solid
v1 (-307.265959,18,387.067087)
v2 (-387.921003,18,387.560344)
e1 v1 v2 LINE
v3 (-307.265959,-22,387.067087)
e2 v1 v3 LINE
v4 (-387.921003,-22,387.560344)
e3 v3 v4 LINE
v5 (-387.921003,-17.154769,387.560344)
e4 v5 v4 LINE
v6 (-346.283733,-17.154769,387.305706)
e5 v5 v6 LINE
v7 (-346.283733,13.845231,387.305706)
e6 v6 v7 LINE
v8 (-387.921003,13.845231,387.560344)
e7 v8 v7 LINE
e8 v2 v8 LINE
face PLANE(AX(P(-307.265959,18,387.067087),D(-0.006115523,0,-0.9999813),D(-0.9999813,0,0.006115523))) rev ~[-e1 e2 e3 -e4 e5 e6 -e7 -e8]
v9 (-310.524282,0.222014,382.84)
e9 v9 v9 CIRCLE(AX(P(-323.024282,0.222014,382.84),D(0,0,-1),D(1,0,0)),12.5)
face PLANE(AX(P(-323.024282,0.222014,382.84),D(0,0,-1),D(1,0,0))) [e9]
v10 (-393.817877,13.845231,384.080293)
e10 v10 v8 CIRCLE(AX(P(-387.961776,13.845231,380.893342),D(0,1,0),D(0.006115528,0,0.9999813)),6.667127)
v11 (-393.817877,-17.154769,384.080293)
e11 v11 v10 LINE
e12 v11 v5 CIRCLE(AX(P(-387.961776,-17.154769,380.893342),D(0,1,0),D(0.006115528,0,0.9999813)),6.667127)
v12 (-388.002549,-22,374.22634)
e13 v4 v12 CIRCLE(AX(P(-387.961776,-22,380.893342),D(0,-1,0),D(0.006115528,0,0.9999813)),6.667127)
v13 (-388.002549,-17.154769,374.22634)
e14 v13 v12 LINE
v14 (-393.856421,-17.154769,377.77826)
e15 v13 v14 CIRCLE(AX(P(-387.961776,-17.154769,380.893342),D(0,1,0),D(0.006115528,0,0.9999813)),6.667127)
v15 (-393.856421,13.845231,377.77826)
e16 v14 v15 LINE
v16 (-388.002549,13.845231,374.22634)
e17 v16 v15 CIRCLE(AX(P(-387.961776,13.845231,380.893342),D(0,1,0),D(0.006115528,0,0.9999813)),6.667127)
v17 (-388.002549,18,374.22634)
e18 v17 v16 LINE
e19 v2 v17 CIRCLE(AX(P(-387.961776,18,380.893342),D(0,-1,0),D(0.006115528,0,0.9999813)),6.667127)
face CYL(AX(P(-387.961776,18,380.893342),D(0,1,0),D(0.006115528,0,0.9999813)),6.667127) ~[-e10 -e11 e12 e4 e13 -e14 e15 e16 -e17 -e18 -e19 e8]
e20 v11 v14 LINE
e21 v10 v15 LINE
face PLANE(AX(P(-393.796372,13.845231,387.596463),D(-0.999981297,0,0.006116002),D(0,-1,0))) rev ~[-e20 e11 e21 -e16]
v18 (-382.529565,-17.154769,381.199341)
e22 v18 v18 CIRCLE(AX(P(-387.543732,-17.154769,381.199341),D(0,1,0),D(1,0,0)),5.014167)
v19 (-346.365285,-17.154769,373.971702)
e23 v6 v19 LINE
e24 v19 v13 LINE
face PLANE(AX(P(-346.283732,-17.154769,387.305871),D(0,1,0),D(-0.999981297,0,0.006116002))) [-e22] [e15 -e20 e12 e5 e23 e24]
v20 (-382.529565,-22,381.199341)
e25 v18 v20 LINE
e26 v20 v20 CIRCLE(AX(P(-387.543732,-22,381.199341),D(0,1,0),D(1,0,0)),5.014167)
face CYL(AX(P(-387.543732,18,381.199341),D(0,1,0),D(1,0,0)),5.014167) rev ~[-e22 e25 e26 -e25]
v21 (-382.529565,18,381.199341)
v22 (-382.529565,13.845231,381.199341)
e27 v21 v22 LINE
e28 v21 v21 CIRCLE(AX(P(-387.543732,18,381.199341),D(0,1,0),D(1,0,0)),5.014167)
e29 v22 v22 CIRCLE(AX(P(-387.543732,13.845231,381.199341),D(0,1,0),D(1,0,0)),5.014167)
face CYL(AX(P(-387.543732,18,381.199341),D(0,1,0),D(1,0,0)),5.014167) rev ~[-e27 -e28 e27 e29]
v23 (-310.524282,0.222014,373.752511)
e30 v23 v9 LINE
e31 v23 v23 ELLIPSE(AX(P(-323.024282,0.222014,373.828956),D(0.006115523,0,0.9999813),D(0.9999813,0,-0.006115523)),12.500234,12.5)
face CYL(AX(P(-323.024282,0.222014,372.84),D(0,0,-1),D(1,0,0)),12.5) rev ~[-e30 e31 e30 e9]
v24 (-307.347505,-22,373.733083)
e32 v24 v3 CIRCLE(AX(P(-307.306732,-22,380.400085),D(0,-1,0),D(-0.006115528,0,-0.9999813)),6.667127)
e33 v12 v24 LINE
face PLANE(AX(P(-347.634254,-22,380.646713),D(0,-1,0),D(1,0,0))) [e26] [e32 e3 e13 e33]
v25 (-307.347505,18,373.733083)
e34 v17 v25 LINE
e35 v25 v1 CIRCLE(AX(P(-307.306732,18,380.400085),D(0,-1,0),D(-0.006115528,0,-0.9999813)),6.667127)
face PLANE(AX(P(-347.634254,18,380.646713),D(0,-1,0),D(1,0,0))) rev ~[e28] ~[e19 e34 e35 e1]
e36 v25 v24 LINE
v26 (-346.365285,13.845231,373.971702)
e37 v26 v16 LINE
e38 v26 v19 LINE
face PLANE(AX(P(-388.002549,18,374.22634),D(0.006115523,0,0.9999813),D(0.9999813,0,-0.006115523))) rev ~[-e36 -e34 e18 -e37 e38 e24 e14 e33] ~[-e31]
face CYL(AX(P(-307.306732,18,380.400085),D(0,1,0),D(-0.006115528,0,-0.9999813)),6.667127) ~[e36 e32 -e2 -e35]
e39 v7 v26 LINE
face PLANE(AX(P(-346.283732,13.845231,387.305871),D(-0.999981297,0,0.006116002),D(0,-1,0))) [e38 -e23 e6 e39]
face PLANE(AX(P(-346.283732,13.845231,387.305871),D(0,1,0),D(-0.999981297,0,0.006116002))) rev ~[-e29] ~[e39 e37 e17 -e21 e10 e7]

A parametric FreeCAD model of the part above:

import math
import FreeCAD as App
import Part
import Sketcher


def add_polygon(sketch, points):
    """Adds a closed chain of lines whose ends are joined by coincident constraints."""
    first, n = sketch.GeometryCount, len(points)
    for a, b in zip(points, points[1:] + points[:1]):
        sketch.addGeometry(Part.LineSegment(App.Vector(*a, 0), App.Vector(*b, 0)), False)
    for i in range(n):
        sketch.addConstraint(Sketcher.Constraint("Coincident", first + i, 2, first + (i + 1) % n, 1))

doc = App.newDocument("Part")
body = doc.addObject("PartDesign::Body", "Body")

# Sketch on XZ plane
sketch1 = doc.addObject("Sketcher::SketchObject", "Sketch")
body.addObject(sketch1)
sketch1.AttachmentSupport = (doc.XZ_Plane, [""])
sketch1.MapMode = "FlatFace"
sketch1.addGeometry([
    Part.ArcOfCircle(Part.Circle(App.Vector(-388, 381, 0), App.Vector(0, 0, 1), 7), math.radians(90), math.radians(270)),
    Part.LineSegment(App.Vector(-388, 374, 0), App.Vector(-307, 374, 0)),
    Part.ArcOfCircle(Part.Circle(App.Vector(-307, 380, 0), App.Vector(0, 0, 1), 7), math.radians(-90), math.radians(90)),
    Part.LineSegment(App.Vector(-307, 387, 0), App.Vector(-388, 388, 0)),
], False)
sketch1.addConstraint([
    Sketcher.Constraint("Tangent", 0, 2, 1, 1),
    Sketcher.Constraint("Tangent", 1, 2, 2, 1),
    Sketcher.Constraint("Tangent", 2, 2, 3, 1),
    Sketcher.Constraint("Tangent", 3, 2, 0, 1),
    Sketcher.Constraint("Equal", 0, 2),
    Sketcher.Constraint("Radius", 0, 6.667127),
    Sketcher.Constraint("DistanceY", -1, 1, 0, 3, 380.893342),
    Sketcher.Constraint("DistanceX", 2, 3, -1, 1, 307.306732),
    Sketcher.Constraint("DistanceX", 0, 2, -1, 1, 388.002549),
    Sketcher.Constraint("DistanceX", 2, 2, -1, 1, 307.265959),
])
pad1 = doc.addObject("PartDesign::Pad", "Pad")
body.addObject(pad1)
pad1.Profile = sketch1
pad1.Length = 40

# Sketch on an angled plane
sketch2 = doc.addObject("Sketcher::SketchObject", "Sketch001")
body.addObject(sketch2)
sketch2.Placement = App.Placement(App.Vector(2.355584, 0, 385.173552), App.Rotation(App.Vector(-0.999981297, 0, 0.006116002), App.Vector(0, -1, 0), App.Vector(0.006116002, 0, 0.999981297), "ZXY"))
add_polygon(sketch2, [(349, 35), (349, 4), (396, 4), (396, 35)])  # lines 0-3
sketch2.addConstraint([
    Sketcher.Constraint("Vertical", 0),
    Sketcher.Constraint("Horizontal", 1),
    Sketcher.Constraint("Vertical", 2),
    Sketcher.Constraint("Horizontal", 3),
    Sketcher.Constraint("DistanceY", 0, 2, 0, 1, 31.0),
    Sketcher.Constraint("DistanceX", 1, 1, 1, 2, 47.513529),
    Sketcher.Constraint("DistanceY", -1, 1, 0, 2, 4.154769),
    Sketcher.Constraint("DistanceX", -1, 1, 0, 2, 348.645836),
])
pocket1 = doc.addObject("PartDesign::Pocket", "Pocket")
body.addObject(pocket1)
pocket1.Profile = sketch2
pocket1.Type = "ThroughAll"

# Sketch on XZ plane
sketch3 = doc.addObject("Sketcher::SketchObject", "Sketch002")
body.addObject(sketch3)
sketch3.AttachmentSupport = (doc.XZ_Plane, [""])
sketch3.MapMode = "FlatFace"
sketch3.addGeometry(Part.Circle(App.Vector(-388, 381, 0), App.Vector(0, 0, 1), 5), False)
sketch3.addConstraint([
    Sketcher.Constraint("Diameter", 0, 10.028334),
    Sketcher.Constraint("DistanceX", 0, 3, -1, 1, 387.543732),
    Sketcher.Constraint("DistanceY", -1, 1, 0, 3, 381.199341),
])
pocket2 = doc.addObject("PartDesign::Pocket", "Pocket001")
body.addObject(pocket2)
pocket2.Profile = sketch3
pocket2.Type = "ThroughAll"
pocket2.Reversed = True

# Sketch on XY plane
sketch4 = doc.addObject("Sketcher::SketchObject", "Sketch003")
body.addObject(sketch4)
sketch4.AttachmentSupport = (doc.XY_Plane, [""])
sketch4.MapMode = "FlatFace"
sketch4.AttachmentOffset = App.Placement(App.Vector(0, 0, 372.84), App.Rotation())
sketch4.addGeometry(Part.Circle(App.Vector(-323, -18, 0), App.Vector(0, 0, 1), 12), False)
sketch4.addConstraint([
    Sketcher.Constraint("Diameter", 0, 25.0),
    Sketcher.Constraint("DistanceX", 0, 3, -1, 1, 323.024282),
    Sketcher.Constraint("DistanceY", 0, 3, -1, 1, 17.777986),
])
pocket3 = doc.addObject("PartDesign::Pocket", "Pocket002")
body.addObject(pocket3)
pocket3.Profile = sketch4
pocket3.Length = 10
pocket3.Reversed = True
body2 = doc.addObject("PartDesign::Body", "Body001")
doc.recompute()

body.Placement = App.Placement(App.Vector(0, 18, 0), App.Rotation(App.Vector(0, 0, 1), 0))
boolean = doc.addObject("PartDesign::Boolean", "Boolean")
body2.addObject(boolean)
boolean.Type = "Fuse"
boolean.addObjects([body])

doc.recompute()
